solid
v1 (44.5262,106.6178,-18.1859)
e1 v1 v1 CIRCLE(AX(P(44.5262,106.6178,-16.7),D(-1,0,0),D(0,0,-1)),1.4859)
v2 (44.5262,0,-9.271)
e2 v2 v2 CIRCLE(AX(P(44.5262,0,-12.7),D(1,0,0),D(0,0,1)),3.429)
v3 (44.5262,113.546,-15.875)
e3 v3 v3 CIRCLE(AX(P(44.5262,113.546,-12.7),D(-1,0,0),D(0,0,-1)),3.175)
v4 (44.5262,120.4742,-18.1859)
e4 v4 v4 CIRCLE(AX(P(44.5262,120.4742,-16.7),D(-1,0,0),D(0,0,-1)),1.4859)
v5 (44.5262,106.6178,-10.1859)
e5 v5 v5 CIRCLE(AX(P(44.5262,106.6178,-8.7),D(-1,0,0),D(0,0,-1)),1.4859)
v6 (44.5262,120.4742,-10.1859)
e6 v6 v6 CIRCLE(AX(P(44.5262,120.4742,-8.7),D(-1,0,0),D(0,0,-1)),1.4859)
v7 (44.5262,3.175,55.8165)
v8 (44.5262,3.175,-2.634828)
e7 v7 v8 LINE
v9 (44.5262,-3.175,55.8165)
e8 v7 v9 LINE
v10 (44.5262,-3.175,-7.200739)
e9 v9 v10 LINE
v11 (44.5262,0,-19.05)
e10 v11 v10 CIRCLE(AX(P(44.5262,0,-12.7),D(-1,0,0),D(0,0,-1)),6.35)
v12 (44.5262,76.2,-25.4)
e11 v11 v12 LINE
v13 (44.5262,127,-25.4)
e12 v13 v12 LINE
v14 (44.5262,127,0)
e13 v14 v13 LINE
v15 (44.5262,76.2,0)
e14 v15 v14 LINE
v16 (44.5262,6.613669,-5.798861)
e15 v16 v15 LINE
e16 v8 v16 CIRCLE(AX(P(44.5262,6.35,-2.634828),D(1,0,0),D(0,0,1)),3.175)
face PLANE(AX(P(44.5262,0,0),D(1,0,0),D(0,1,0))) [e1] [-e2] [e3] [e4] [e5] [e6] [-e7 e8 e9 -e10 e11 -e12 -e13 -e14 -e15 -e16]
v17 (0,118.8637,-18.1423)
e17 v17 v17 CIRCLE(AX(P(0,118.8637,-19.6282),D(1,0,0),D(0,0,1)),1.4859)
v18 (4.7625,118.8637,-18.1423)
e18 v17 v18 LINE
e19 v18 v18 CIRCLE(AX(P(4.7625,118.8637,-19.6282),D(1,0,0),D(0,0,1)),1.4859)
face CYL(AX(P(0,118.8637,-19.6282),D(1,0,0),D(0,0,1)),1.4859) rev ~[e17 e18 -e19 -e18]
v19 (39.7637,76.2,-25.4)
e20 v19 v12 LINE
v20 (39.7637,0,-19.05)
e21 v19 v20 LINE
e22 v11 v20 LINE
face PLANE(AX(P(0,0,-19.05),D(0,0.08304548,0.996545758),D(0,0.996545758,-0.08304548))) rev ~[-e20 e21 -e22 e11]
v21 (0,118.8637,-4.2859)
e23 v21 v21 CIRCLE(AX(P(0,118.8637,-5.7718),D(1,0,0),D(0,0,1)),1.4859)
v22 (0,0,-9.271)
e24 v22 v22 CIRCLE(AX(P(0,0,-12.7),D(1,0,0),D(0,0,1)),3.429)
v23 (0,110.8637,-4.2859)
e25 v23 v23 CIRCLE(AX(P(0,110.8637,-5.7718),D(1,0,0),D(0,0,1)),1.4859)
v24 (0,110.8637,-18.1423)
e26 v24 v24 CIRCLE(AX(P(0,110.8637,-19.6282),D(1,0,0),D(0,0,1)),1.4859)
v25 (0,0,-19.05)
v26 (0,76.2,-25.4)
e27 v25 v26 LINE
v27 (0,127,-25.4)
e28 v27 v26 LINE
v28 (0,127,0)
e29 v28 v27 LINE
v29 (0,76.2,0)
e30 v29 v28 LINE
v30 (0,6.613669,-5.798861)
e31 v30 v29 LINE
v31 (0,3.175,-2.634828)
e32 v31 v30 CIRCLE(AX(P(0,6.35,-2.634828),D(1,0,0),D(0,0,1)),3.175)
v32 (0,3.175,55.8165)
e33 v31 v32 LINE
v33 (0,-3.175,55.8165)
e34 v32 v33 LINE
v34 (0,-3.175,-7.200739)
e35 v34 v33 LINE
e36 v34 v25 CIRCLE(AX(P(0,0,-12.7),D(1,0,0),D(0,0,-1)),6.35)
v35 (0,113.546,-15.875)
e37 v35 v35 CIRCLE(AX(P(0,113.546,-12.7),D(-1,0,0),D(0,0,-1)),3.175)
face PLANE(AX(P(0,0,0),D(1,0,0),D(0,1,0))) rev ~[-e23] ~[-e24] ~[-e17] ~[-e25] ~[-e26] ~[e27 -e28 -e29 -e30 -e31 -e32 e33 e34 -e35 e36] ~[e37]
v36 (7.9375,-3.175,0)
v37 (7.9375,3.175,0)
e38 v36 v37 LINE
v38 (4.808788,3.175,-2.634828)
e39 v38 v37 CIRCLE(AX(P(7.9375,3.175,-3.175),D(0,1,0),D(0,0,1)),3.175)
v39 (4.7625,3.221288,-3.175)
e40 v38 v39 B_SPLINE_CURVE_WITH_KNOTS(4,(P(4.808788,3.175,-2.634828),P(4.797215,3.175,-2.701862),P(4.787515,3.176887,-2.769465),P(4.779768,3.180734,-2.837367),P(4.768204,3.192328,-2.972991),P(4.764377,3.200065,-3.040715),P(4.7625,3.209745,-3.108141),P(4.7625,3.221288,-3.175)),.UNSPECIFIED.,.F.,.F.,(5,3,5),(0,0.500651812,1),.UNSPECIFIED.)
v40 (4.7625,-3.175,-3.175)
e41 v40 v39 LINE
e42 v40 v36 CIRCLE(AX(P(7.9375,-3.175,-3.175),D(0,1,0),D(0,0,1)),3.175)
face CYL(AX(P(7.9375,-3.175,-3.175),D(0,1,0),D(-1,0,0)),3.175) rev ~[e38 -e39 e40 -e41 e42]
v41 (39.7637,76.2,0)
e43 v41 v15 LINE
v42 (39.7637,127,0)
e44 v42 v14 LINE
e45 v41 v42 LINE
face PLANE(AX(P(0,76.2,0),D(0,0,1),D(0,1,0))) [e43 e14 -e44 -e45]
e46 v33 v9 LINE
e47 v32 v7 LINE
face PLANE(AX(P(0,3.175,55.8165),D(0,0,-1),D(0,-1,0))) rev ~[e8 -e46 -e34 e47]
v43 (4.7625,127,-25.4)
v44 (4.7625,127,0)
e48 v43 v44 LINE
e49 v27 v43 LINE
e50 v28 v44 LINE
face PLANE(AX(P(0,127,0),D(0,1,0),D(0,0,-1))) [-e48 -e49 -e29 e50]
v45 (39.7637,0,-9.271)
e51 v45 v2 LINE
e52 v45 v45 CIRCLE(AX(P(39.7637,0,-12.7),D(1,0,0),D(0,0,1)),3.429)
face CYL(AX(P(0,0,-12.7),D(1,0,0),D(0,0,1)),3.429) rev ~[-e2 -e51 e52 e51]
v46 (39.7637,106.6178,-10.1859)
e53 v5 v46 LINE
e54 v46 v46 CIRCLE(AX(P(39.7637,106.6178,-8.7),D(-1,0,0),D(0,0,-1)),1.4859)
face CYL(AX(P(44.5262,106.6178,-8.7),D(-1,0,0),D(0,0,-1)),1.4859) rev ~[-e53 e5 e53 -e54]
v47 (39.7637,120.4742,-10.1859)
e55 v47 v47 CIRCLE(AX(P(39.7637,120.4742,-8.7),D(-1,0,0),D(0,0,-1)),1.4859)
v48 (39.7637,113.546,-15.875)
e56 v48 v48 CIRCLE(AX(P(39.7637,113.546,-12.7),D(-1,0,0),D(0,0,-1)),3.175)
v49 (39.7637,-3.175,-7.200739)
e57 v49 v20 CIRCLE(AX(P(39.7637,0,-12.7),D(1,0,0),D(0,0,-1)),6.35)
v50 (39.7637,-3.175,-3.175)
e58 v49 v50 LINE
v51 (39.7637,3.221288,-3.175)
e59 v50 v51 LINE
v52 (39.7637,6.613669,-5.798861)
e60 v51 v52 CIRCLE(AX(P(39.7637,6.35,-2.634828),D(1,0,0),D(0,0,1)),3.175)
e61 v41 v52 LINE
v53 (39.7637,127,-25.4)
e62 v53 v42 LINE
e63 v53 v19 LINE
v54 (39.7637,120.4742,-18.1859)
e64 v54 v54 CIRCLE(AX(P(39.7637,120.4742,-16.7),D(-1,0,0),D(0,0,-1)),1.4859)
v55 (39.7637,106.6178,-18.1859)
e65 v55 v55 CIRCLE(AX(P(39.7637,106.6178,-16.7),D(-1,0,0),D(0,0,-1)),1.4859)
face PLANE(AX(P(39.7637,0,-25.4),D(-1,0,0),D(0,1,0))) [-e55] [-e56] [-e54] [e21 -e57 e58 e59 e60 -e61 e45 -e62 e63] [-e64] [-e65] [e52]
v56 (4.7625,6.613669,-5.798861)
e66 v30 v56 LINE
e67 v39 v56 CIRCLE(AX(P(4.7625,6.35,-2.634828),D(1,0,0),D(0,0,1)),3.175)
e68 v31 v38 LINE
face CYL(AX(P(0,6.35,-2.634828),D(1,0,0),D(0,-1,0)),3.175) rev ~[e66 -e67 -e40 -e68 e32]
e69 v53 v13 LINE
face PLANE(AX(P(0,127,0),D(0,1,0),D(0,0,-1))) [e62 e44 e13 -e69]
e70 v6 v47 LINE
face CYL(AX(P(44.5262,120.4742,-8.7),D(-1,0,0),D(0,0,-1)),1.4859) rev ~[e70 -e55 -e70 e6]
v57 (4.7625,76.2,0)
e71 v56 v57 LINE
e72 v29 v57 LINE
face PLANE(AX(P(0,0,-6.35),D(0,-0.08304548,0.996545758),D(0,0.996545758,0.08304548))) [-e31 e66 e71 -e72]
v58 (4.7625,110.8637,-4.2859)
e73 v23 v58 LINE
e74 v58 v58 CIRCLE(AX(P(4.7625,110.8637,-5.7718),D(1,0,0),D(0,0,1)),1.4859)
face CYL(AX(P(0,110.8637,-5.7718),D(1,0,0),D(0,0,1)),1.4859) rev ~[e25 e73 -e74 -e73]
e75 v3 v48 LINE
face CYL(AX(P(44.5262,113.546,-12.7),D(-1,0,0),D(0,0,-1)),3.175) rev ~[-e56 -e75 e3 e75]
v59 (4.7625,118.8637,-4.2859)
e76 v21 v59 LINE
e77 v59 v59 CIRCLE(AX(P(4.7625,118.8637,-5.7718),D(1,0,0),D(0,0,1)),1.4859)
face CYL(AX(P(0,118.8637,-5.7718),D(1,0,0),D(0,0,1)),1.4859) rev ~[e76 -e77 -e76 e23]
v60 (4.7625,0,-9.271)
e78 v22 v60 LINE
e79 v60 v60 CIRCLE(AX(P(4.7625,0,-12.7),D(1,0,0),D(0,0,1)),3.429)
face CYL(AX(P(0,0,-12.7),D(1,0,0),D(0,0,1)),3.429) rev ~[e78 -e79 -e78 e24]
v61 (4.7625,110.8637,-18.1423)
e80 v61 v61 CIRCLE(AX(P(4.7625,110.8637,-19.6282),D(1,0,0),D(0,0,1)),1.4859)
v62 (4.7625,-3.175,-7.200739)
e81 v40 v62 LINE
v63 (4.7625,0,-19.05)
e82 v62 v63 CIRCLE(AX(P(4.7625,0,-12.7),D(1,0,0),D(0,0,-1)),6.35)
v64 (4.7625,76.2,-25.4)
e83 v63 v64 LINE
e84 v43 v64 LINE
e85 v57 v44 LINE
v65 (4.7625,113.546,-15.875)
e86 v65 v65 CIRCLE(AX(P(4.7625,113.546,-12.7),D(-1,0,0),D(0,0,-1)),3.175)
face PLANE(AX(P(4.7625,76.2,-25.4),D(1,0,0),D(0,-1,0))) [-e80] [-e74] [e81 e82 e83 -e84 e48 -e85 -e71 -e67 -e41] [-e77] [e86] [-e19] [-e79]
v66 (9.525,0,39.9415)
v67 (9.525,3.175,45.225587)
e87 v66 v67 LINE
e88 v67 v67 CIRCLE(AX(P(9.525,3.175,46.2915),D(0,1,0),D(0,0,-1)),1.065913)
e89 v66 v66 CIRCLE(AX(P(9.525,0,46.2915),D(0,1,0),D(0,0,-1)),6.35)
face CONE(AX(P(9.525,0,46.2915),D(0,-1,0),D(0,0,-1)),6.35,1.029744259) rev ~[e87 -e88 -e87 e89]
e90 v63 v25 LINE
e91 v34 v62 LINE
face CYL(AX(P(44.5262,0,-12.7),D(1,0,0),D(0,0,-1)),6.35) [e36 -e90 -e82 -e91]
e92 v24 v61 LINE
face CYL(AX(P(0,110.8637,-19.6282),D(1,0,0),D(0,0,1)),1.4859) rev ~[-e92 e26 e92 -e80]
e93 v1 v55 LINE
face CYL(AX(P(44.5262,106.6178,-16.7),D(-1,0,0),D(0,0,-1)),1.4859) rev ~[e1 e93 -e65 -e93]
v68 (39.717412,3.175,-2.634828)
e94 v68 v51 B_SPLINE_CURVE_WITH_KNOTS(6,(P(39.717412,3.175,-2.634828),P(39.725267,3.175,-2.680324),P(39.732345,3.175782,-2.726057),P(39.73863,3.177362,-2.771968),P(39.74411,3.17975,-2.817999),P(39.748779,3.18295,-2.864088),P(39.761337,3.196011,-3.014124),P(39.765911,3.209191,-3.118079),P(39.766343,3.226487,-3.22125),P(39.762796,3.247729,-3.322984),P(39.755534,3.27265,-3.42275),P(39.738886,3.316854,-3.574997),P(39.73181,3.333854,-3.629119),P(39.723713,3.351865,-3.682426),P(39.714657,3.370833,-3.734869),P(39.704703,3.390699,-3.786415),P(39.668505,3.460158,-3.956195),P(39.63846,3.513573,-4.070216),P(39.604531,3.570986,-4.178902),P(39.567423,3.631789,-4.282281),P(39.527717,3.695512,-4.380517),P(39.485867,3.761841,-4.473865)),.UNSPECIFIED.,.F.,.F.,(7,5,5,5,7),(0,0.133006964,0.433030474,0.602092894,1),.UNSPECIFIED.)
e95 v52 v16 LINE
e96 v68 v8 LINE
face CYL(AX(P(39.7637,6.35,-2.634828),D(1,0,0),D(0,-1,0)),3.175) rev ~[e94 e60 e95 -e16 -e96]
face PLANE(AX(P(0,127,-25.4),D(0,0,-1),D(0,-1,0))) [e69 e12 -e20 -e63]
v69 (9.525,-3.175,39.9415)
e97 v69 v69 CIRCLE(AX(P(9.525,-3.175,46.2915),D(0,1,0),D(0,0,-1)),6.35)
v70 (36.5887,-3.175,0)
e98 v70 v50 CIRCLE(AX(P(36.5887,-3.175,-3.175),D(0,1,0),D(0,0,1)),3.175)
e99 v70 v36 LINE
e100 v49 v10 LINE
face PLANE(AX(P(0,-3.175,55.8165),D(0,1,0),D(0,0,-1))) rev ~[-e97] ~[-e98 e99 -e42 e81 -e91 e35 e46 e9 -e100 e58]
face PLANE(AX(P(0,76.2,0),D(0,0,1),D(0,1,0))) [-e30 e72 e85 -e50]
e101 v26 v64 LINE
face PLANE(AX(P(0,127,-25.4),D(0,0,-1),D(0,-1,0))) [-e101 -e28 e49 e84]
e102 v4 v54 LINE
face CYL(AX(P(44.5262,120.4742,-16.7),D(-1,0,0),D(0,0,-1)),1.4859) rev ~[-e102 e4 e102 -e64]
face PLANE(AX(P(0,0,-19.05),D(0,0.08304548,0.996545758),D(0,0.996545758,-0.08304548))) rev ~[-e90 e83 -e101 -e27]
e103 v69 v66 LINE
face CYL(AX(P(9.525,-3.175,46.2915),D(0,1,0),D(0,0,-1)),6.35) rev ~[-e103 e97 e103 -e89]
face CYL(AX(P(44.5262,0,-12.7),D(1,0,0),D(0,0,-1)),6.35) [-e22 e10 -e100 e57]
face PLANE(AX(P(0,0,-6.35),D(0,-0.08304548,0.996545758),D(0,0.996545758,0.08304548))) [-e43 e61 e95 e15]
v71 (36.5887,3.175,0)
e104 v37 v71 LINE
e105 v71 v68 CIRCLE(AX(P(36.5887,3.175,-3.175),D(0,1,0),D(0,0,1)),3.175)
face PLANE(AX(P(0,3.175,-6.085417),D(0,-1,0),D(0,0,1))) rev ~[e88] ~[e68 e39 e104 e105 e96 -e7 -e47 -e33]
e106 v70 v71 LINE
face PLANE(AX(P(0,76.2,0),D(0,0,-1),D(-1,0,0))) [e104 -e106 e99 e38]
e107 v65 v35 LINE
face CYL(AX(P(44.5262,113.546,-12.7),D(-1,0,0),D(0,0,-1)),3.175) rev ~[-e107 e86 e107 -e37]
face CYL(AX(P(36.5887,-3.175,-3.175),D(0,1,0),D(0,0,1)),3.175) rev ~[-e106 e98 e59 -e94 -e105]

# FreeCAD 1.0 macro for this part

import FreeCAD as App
import Part
import Sketcher

V = App.Vector
Q = App.Units.Quantity


def edges_at(feature, points):
    """Names of the edges that pass closest to the given points."""
    edges = feature.Shape.Edges
    near = lambda p: min(range(len(edges)), key=lambda i: edges[i].distToShape(Part.Vertex(*p))[0])
    return sorted({f"Edge{near(p) + 1}" for p in points})

doc = App.newDocument("Part")
body = doc.addObject("PartDesign::Body", "Body")

sketch1 = body.newObject("Sketcher::SketchObject", "Sketch")
sketch1.AttachmentSupport = (doc.getObject("YZ_Plane"), [""])
sketch1.MapMode = "FlatFace"
sketch1.AttachmentOffset = App.Placement(V(0, 0, 1.753 * 25.4), App.Rotation())
sketch1.addGeometry(Part.Circle(V(0, -13, 0), V(0, 0, 1), 6), False)
sketch1.addConstraint([
    Sketcher.Constraint("PointOnObject", 0, 3, -2),
    Sketcher.Constraint("Diameter", 0, Q("0.5 in")),
    Sketcher.Constraint("DistanceY", 0, 3, -1, 1, Q("0.5 in")),
])
pad1 = body.newObject("PartDesign::Pad", "Pad")
pad1.Profile = sketch1
pad1.Length = Q("1.753 in")
pad1.Reversed = True

sketch2 = body.newObject("Sketcher::SketchObject", "Sketch001")
sketch2.AttachmentSupport = (doc.getObject("YZ_Plane"), [""])
sketch2.MapMode = "FlatFace"
sketch2.addGeometry([
    Part.LineSegment(V(127, 0, 0), V(76, 0, 0)),
    Part.LineSegment(V(76, 0, 0), V(0, -6, 0)),
    Part.LineSegment(V(0, -6, 0), V(0, -19, 0)),
    Part.LineSegment(V(0, -19, 0), V(76, -25, 0)),
    Part.LineSegment(V(76, -25, 0), V(127, -25, 0)),
    Part.LineSegment(V(127, -25, 0), V(127, 0, 0)),
], False)
sketch2.addConstraint([
    Sketcher.Constraint("Coincident", 0, 2, 1, 1),
    Sketcher.Constraint("Coincident", 1, 2, 2, 1),
    Sketcher.Constraint("Coincident", 2, 2, 3, 1),
    Sketcher.Constraint("Coincident", 3, 2, 4, 1),
    Sketcher.Constraint("Coincident", 4, 2, 5, 1),
    Sketcher.Constraint("Coincident", 5, 2, 0, 1),
    Sketcher.Constraint("Horizontal", 0),
    Sketcher.Constraint("Vertical", 2),
    Sketcher.Constraint("Horizontal", 4),
    Sketcher.Constraint("Vertical", 5),
    Sketcher.Constraint("PointOnObject", 0, 2, -1),
    Sketcher.Constraint("PointOnObject", 1, 2, -2),
    Sketcher.Constraint("Vertical", 0, 2, 3, 2),
    Sketcher.Constraint("Equal", 1, 3),
    Sketcher.Constraint("DistanceX", 0, 2, 0, 1, Q("2 in")),
    Sketcher.Constraint("DistanceY", 5, 1, 5, 2, Q("1 in")),
    Sketcher.Constraint("DistanceY", 2, 2, 2, 1, Q("0.5 in")),
    Sketcher.Constraint("DistanceX", -1, 1, 4, 2, Q("5 in")),
])
pad2 = body.newObject("PartDesign::Pad", "Pad001")
pad2.Profile = sketch2
pad2.Length = Q("1.753 in")

sketch3 = body.newObject("Sketcher::SketchObject", "Sketch002")
sketch3.AttachmentSupport = (doc.getObject("YZ_Plane"), [""])
sketch3.MapMode = "FlatFace"
sketch3.addGeometry(Part.Circle(V(0, -12.7, 0), V(0, 0, 1), 3.4), False)
sketch3.addConstraint([
    Sketcher.Constraint("PointOnObject", 0, 3, -2),
    Sketcher.Constraint("Diameter", 0, Q("0.27 in")),
    Sketcher.Constraint("DistanceY", 0, 3, -1, 1, Q("0.5 in")),
])
doc.recompute()
hole = body.newObject("PartDesign::Hole", "Hole")
hole.Profile = sketch3
hole.ThreadType = "None"
hole.Diameter = Q("0.27 in")
hole.DepthType = "ThroughAll"
hole.Reversed = True

sketch4 = body.newObject("Sketcher::SketchObject", "Sketch003")
sketch4.AttachmentSupport = (doc.getObject("YZ_Plane"), [""])
sketch4.MapMode = "FlatFace"
sketch4.addGeometry([
    Part.LineSegment(V(3, 56, 0), V(3, -8, 0)),
    Part.LineSegment(V(3, -8, 0), V(-3, -8, 0)),
    Part.LineSegment(V(-3, -8, 0), V(-3, 56, 0)),
    Part.LineSegment(V(-3, 56, 0), V(3, 56, 0)),
], False)
sketch4.addConstraint([
    Sketcher.Constraint("Coincident", 0, 2, 1, 1),
    Sketcher.Constraint("Coincident", 1, 2, 2, 1),
    Sketcher.Constraint("Coincident", 2, 2, 3, 1),
    Sketcher.Constraint("Coincident", 3, 2, 0, 1),
    Sketcher.Constraint("Vertical", 0),
    Sketcher.Constraint("Horizontal", 1),
    Sketcher.Constraint("Vertical", 2),
    Sketcher.Constraint("Horizontal", 3),
    Sketcher.Constraint("DistanceY", 0, 2, 0, 1, Q("2.5 in")),
    Sketcher.Constraint("DistanceX", 1, 2, 1, 1, Q("0.25 in")),
    Sketcher.Constraint("DistanceX", -1, 1, 0, 2, Q("0.125 in")),
    Sketcher.Constraint("DistanceY", 0, 2, -1, 1, Q("0.3025 in")),
])
pad3 = body.newObject("PartDesign::Pad", "Pad002")
pad3.Profile = sketch4
pad3.Length = Q("1.753 in")

sketch5 = body.newObject("Sketcher::SketchObject", "Sketch004")
sketch5.AttachmentSupport = (doc.getObject("XY_Plane"), [""])
sketch5.MapMode = "FlatFace"
sketch5.AttachmentOffset = App.Placement(V(0, 0, -1 * 25.4), App.Rotation())
sketch5.addGeometry([
    Part.LineSegment(V(5, 127, 0), V(40, 127, 0)),
    Part.LineSegment(V(40, 127, 0), V(40, -22, 0)),
    Part.LineSegment(V(40, -22, 0), V(5, -22, 0)),
    Part.LineSegment(V(5, -22, 0), V(5, 127, 0)),
], False)
sketch5.addConstraint([
    Sketcher.Constraint("Coincident", 0, 2, 1, 1),
    Sketcher.Constraint("Coincident", 1, 2, 2, 1),
    Sketcher.Constraint("Coincident", 2, 2, 3, 1),
    Sketcher.Constraint("Coincident", 3, 2, 0, 1),
    Sketcher.Constraint("Horizontal", 0),
    Sketcher.Constraint("Vertical", 1),
    Sketcher.Constraint("Horizontal", 2),
    Sketcher.Constraint("Vertical", 3),
    Sketcher.Constraint("DistanceX", 0, 1, 0, 2, Q("1.378 in")),
    Sketcher.Constraint("DistanceY", 1, 2, 1, 1, Q("5.875 in")),
    Sketcher.Constraint("DistanceX", -1, 1, 2, 2, Q("0.1875 in")),
    Sketcher.Constraint("DistanceY", -1, 1, 0, 2, Q("5 in")),
])
pocket1 = body.newObject("PartDesign::Pocket", "Pocket")
pocket1.Profile = sketch5
pocket1.Length = Q("1 in")
pocket1.Reversed = True
doc.recompute()

fillet = body.newObject("PartDesign::Fillet", "Fillet")
fillet.Base = (pocket1, edges_at(pocket1, [(39.764, 0, 0), (4.763, 0, 0)]))
fillet.Radius = Q("0.125 in")
doc.recompute()

fillet2 = body.newObject("PartDesign::Fillet", "Fillet001")
fillet2.Base = (fillet, edges_at(fillet, [(2.381, 3.175, -6.085), (42.145, 3.175, -6.085)]))
fillet2.Radius = Q("0.125 in")

sketch6 = body.newObject("Sketcher::SketchObject", "Sketch005")
sketch6.AttachmentSupport = (doc.getObject("YZ_Plane"), [""])
sketch6.MapMode = "FlatFace"
sketch6.addGeometry([
    Part.Circle(V(118.9, -19.6, 0), V(0, 0, 1), 1.5),
    Part.Circle(V(110.9, -19.6, 0), V(0, 0, 1), 1.5),
    Part.Circle(V(118.9, -5.8, 0), V(0, 0, 1), 1.5),
    Part.Circle(V(110.9, -5.8, 0), V(0, 0, 1), 1.5),
], False)
sketch6.addConstraint([
    Sketcher.Constraint("Equal", 0, 1),
    Sketcher.Constraint("Equal", 1, 2),
    Sketcher.Constraint("Equal", 2, 3),
    Sketcher.Constraint("Horizontal", 0, 3, 1, 3),
    Sketcher.Constraint("Horizontal", 2, 3, 3, 3),
    Sketcher.Constraint("Vertical", 0, 3, 2, 3),
    Sketcher.Constraint("Vertical", 1, 3, 3, 3),
    Sketcher.Constraint("Diameter", 0, Q("0.117 in")),
    Sketcher.Constraint("DistanceX", -1, 1, 0, 3, 118.8637),
    Sketcher.Constraint("DistanceY", 0, 3, -1, 1, 19.6282),
    Sketcher.Constraint("DistanceX", -1, 1, 1, 3, 110.8637),
    Sketcher.Constraint("DistanceY", 2, 3, -1, 1, 5.7718),
])
doc.recompute()
hole2 = body.newObject("PartDesign::Hole", "Hole001")
hole2.Profile = sketch6
hole2.ThreadType = "None"
hole2.Diameter = Q("0.117 in")
hole2.DepthType = "Dimension"
hole2.Depth = Q("1 in")
hole2.DrillPoint = "Angled"
hole2.DrillPointAngle = 118
hole2.Reversed = True

sketch7 = body.newObject("Sketcher::SketchObject", "Sketch006")
sketch7.AttachmentSupport = (doc.getObject("YZ_Plane"), [""])
sketch7.MapMode = "FlatFace"
sketch7.AttachmentOffset = App.Placement(V(0, 0, 1.753 * 25.4), App.Rotation())
sketch7.addGeometry([
    Part.Circle(V(106.6, -16.7, 0), V(0, 0, 1), 1.5),
    Part.Circle(V(106.6, -8.7, 0), V(0, 0, 1), 1.5),
    Part.Circle(V(120.5, -8.7, 0), V(0, 0, 1), 1.5),
    Part.Circle(V(120.5, -16.7, 0), V(0, 0, 1), 1.5),
], False)
sketch7.addConstraint([
    Sketcher.Constraint("Equal", 0, 1),
    Sketcher.Constraint("Equal", 1, 2),
    Sketcher.Constraint("Equal", 2, 3),
    Sketcher.Constraint("Horizontal", 1, 3, 2, 3),
    Sketcher.Constraint("Horizontal", 0, 3, 3, 3),
    Sketcher.Constraint("Vertical", 0, 3, 1, 3),
    Sketcher.Constraint("Vertical", 2, 3, 3, 3),
    Sketcher.Constraint("Diameter", 0, Q("0.117 in")),
    Sketcher.Constraint("DistanceX", -1, 1, 0, 3, 106.6178),
    Sketcher.Constraint("DistanceY", 0, 3, -1, 1, 16.7),
    Sketcher.Constraint("DistanceY", 1, 3, -1, 1, 8.7),
    Sketcher.Constraint("DistanceX", -1, 1, 2, 3, 120.4742),
])
doc.recompute()
hole3 = body.newObject("PartDesign::Hole", "Hole002")
hole3.Profile = sketch7
hole3.ThreadType = "None"
hole3.Diameter = Q("0.117 in")
hole3.DepthType = "Dimension"
hole3.Depth = Q("1 in")
hole3.DrillPoint = "Angled"
hole3.DrillPointAngle = 118

sketch8 = body.newObject("Sketcher::SketchObject", "Sketch007")
sketch8.AttachmentSupport = (doc.getObject("XZ_Plane"), [""])
sketch8.MapMode = "FlatFace"
sketch8.AttachmentOffset = App.Placement(V(0, 0, 0.125 * 25.4), App.Rotation())
sketch8.addGeometry(Part.Circle(V(10, 46, 0), V(0, 0, 1), 6), False)
sketch8.addConstraint([
    Sketcher.Constraint("Diameter", 0, Q("0.5 in")),
    Sketcher.Constraint("DistanceX", -1, 1, 0, 3, Q("0.375 in")),
    Sketcher.Constraint("DistanceY", -1, 1, 0, 3, Q("1.8225 in")),
])
doc.recompute()
hole4 = body.newObject("PartDesign::Hole", "Hole003")
hole4.Profile = sketch8
hole4.ThreadType = "None"
hole4.Diameter = Q("0.5 in")
hole4.DepthType = "Dimension"
hole4.Depth = Q("0.125 in")
hole4.DrillPoint = "Angled"
hole4.DrillPointAngle = 118

sketch9 = body.newObject("Sketcher::SketchObject", "Sketch008")
sketch9.AttachmentSupport = (doc.getObject("YZ_Plane"), [""])
sketch9.MapMode = "FlatFace"
sketch9.AttachmentOffset = App.Placement(V(0, 0, 1.753 * 25.4), App.Rotation())
sketch9.addGeometry(Part.Circle(V(113.5, -12.7, 0), V(0, 0, 1), 3.2), False)
sketch9.addConstraint([
    Sketcher.Constraint("Diameter", 0, Q("0.25 in")),
    Sketcher.Constraint("DistanceY", 0, 3, -1, 1, Q("0.5 in")),
    Sketcher.Constraint("DistanceX", -1, 1, 0, 3, 113.546),
])
doc.recompute()
hole5 = body.newObject("PartDesign::Hole", "Hole004")
hole5.Profile = sketch9
hole5.ThreadType = "None"
hole5.Diameter = Q("0.25 in")
hole5.DepthType = "ThroughAll"

doc.recompute()
